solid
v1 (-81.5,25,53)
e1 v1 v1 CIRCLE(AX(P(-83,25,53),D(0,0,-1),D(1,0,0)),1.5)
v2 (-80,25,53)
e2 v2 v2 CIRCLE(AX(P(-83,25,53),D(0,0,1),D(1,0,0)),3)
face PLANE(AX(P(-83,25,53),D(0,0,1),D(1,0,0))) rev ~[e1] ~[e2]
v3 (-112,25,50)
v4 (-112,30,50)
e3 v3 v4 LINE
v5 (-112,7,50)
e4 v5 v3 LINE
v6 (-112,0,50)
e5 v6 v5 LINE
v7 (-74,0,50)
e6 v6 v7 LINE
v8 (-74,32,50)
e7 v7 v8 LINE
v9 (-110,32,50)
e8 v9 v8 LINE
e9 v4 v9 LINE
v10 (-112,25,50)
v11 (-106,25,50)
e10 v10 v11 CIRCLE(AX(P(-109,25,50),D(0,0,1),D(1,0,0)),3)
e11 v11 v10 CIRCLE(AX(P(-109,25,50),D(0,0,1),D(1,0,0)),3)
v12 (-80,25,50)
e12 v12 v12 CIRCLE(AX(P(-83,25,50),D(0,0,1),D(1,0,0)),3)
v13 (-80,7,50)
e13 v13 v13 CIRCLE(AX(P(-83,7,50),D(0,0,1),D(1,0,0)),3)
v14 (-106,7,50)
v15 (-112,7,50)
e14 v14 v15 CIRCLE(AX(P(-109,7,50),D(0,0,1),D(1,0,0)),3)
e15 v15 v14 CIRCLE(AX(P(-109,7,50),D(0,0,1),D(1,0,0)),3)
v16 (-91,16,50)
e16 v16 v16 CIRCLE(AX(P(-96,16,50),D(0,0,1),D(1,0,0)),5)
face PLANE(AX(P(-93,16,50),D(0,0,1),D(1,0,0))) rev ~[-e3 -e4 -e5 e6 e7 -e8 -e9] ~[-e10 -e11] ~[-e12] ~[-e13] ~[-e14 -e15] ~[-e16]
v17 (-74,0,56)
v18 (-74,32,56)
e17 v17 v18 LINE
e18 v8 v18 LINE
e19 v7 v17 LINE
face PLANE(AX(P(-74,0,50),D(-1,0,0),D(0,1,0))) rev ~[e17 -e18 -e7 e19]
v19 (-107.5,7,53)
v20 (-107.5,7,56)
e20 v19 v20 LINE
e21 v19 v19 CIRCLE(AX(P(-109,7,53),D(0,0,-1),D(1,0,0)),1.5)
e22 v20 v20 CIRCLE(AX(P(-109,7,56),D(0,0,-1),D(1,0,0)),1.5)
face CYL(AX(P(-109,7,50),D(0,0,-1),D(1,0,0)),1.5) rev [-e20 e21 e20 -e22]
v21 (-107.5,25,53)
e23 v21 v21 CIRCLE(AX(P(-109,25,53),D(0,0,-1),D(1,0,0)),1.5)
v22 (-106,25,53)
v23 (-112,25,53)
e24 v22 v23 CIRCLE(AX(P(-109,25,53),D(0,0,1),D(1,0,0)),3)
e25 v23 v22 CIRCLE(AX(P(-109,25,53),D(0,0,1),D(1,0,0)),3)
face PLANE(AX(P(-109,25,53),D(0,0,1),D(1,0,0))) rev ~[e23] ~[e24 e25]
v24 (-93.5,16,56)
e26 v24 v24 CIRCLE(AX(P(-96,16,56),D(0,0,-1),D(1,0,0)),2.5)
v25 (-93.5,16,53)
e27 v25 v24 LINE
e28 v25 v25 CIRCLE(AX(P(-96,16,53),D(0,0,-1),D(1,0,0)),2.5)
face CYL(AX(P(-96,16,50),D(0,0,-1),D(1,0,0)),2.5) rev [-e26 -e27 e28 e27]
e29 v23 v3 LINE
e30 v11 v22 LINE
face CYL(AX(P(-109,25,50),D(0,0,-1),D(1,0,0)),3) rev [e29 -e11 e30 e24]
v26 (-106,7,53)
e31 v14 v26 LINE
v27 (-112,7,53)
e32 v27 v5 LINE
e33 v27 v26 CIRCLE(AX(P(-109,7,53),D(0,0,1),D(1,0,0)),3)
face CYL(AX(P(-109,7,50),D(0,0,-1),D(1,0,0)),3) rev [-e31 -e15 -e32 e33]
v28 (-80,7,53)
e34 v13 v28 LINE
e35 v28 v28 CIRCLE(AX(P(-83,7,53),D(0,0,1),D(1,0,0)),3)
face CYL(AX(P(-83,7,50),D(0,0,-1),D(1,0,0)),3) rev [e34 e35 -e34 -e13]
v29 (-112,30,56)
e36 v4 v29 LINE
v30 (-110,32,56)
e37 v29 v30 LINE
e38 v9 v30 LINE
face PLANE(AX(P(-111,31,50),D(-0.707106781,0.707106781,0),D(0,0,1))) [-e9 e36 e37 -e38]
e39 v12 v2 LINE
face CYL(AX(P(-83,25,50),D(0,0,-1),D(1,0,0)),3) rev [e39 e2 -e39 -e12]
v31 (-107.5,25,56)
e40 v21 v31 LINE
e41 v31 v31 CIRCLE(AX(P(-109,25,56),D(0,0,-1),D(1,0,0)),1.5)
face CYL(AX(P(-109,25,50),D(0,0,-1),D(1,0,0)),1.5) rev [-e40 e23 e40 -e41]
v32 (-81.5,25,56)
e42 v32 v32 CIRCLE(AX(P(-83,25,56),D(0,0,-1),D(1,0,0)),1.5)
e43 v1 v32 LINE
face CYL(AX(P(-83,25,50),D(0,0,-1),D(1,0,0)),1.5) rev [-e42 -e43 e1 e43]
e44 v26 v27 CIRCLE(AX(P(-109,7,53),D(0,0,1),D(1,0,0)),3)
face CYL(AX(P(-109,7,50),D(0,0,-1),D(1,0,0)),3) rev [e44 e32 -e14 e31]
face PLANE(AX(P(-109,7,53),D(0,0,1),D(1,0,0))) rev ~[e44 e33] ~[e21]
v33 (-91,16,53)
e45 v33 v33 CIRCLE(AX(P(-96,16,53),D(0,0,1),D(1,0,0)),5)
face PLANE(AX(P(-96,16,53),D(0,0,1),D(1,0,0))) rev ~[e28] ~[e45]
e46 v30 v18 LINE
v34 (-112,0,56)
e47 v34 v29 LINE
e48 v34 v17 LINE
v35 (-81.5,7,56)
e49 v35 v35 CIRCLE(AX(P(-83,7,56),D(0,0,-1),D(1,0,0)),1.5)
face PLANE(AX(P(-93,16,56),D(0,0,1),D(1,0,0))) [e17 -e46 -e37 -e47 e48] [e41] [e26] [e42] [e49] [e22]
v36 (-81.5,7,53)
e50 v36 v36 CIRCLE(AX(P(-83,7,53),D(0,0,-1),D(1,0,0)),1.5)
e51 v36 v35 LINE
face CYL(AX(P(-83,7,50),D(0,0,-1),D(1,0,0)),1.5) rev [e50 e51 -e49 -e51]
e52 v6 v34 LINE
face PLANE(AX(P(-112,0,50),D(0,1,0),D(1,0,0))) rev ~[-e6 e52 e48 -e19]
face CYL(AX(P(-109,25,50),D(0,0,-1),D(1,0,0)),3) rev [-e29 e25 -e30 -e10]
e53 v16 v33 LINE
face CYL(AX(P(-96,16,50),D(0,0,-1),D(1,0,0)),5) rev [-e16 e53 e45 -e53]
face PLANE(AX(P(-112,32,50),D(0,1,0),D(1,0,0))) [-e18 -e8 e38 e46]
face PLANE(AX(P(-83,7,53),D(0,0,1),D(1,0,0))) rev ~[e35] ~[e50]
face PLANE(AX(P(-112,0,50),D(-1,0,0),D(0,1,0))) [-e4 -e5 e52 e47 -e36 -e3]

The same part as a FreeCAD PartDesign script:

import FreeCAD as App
import Part
import Sketcher

V = App.Vector
Q = App.Units.Quantity


def edges_at(feature, points):
    """Names of the edges that pass closest to the given points."""
    edges = feature.Shape.Edges
    near = lambda p: min(range(len(edges)), key=lambda i: edges[i].distToShape(Part.Vertex(*p))[0])
    return sorted({f"Edge{near(p) + 1}" for p in points})


def add_polygon(sketch, points):
    """Adds a closed chain of lines whose ends are joined by coincident constraints."""
    first, n = sketch.GeometryCount, len(points)
    for a, b in zip(points, points[1:] + points[:1]):
        sketch.addGeometry(Part.LineSegment(App.Vector(*a, 0), App.Vector(*b, 0)), False)
    for i in range(n):
        sketch.addConstraint(Sketcher.Constraint("Coincident", first + i, 2, first + (i + 1) % n, 1))

doc = App.newDocument("Part")
params = doc.addObject("Spreadsheet::Sheet", "Params")
for row, (alias, value) in enumerate([
    ("sketch1_diameter", "10 mm"),
    ("pad1_length", "3 mm"),
    ("sketch2_diameter", "5 mm"),
    ("pad2_length", "20 mm"),
    ("sketch3_diameter", "3 mm"),
    ("pad3_length", "20 mm"),
    ("sketch4_diameter", "3 mm"),
    ("pad4_length", "20 mm"),
    ("sketch5_diameter", "3 mm"),
    ("pad5_length", "20 mm"),
    ("sketch6_diameter", "3 mm"),
    ("pad6_length", "20 mm"),
    ("sketch7_diameter", "6 mm"),
    ("pad7_length", "3 mm"),
    ("sketch8_diameter", "6 mm"),
    ("pad8_length", "3 mm"),
    ("sketch9_diameter", "6 mm"),
    ("pad9_length", "3 mm"),
    ("sketch10_diameter", "6 mm"),
    ("pad10_length", "3 mm"),
    ("sketch11_width", "38 mm"),
    ("sketch11_height", "32 mm"),
    ("pad11_length", "6 mm"),
    ("chamfer_size", "2 mm"),
], start=1):
    params.set(f"A{row}", alias)
    params.set(f"B{row}", "=" + value)
    params.setAlias(f"B{row}", alias)

body = doc.addObject("PartDesign::Body", "Body")

# Sketch on XY plane
sketch1 = doc.addObject("Sketcher::SketchObject", "Sketch")
body.addObject(sketch1)
sketch1.AttachmentSupport = (doc.XY_Plane, [""])
sketch1.MapMode = "FlatFace"
sketch1.AttachmentOffset = App.Placement(V(0, 0, 50), App.Rotation())
sketch1.addGeometry(Part.Circle(V(-96, 16, 0), V(0, 0, 1), 5), False)
sketch1.addConstraint([
    Sketcher.Constraint("Diameter", 0, Q("10 mm")),
    Sketcher.Constraint("DistanceX", 0, 3, -1, 1, Q("96 mm")),
    Sketcher.Constraint("DistanceY", -1, 1, 0, 3, Q("16 mm")),
])
sketch1.setExpression("Constraints[0]", "Params.sketch1_diameter")
pad1 = doc.addObject("PartDesign::Pad", "Pad")
body.addObject(pad1)
pad1.Profile = sketch1
pad1.setExpression("Length", "Params.pad1_length")
body2 = doc.addObject("PartDesign::Body", "Body001")

# Sketch on XY plane
sketch2 = doc.addObject("Sketcher::SketchObject", "Sketch001")
body2.addObject(sketch2)
sketch2.AttachmentSupport = (doc.getObject("XY_Plane001"), [""])
sketch2.MapMode = "FlatFace"
sketch2.AttachmentOffset = App.Placement(V(0, 0, 50), App.Rotation())
sketch2.addGeometry(Part.Circle(V(-96, 16, 0), V(0, 0, 1), 2.5), False)
sketch2.addConstraint([
    Sketcher.Constraint("Diameter", 0, Q("5 mm")),
    Sketcher.Constraint("DistanceX", 0, 3, -1, 1, Q("96 mm")),
    Sketcher.Constraint("DistanceY", -1, 1, 0, 3, Q("16 mm")),
])
sketch2.setExpression("Constraints[0]", "Params.sketch2_diameter")
pad2 = doc.addObject("PartDesign::Pad", "Pad001")
body2.addObject(pad2)
pad2.Profile = sketch2
pad2.setExpression("Length", "Params.pad2_length")
body3 = doc.addObject("PartDesign::Body", "Body002")

# Sketch on XY plane
sketch3 = doc.addObject("Sketcher::SketchObject", "Sketch002")
body3.addObject(sketch3)
sketch3.AttachmentSupport = (doc.getObject("XY_Plane002"), [""])
sketch3.MapMode = "FlatFace"
sketch3.AttachmentOffset = App.Placement(V(0, 0, 54), App.Rotation())
sketch3.addGeometry(Part.Circle(V(-83, 25, 0), V(0, 0, 1), 1.5), False)
sketch3.addConstraint([
    Sketcher.Constraint("Diameter", 0, Q("3 mm")),
    Sketcher.Constraint("DistanceX", 0, 3, -1, 1, Q("83 mm")),
    Sketcher.Constraint("DistanceY", -1, 1, 0, 3, Q("25 mm")),
])
sketch3.setExpression("Constraints[0]", "Params.sketch3_diameter")
pad3 = doc.addObject("PartDesign::Pad", "Pad002")
body3.addObject(pad3)
pad3.Profile = sketch3
pad3.setExpression("Length", "Params.pad3_length")
body4 = doc.addObject("PartDesign::Body", "Body003")

# Sketch on XY plane
sketch4 = doc.addObject("Sketcher::SketchObject", "Sketch003")
body4.addObject(sketch4)
sketch4.AttachmentSupport = (doc.getObject("XY_Plane003"), [""])
sketch4.MapMode = "FlatFace"
sketch4.AttachmentOffset = App.Placement(V(0, 0, 54), App.Rotation())
sketch4.addGeometry(Part.Circle(V(-109, 7, 0), V(0, 0, 1), 1.5), False)
sketch4.addConstraint([
    Sketcher.Constraint("Diameter", 0, Q("3 mm")),
    Sketcher.Constraint("DistanceX", 0, 3, -1, 1, Q("109 mm")),
    Sketcher.Constraint("DistanceY", -1, 1, 0, 3, Q("7 mm")),
])
sketch4.setExpression("Constraints[0]", "Params.sketch4_diameter")
pad4 = doc.addObject("PartDesign::Pad", "Pad003")
body4.addObject(pad4)
pad4.Profile = sketch4
pad4.setExpression("Length", "Params.pad4_length")
body5 = doc.addObject("PartDesign::Body", "Body004")

# Sketch on XY plane
sketch5 = doc.addObject("Sketcher::SketchObject", "Sketch004")
body5.addObject(sketch5)
sketch5.AttachmentSupport = (doc.getObject("XY_Plane004"), [""])
sketch5.MapMode = "FlatFace"
sketch5.AttachmentOffset = App.Placement(V(0, 0, 54), App.Rotation())
sketch5.addGeometry(Part.Circle(V(-109, 25, 0), V(0, 0, 1), 1.5), False)
sketch5.addConstraint([
    Sketcher.Constraint("Diameter", 0, Q("3 mm")),
    Sketcher.Constraint("DistanceX", 0, 3, -1, 1, Q("109 mm")),
    Sketcher.Constraint("DistanceY", -1, 1, 0, 3, Q("25 mm")),
])
sketch5.setExpression("Constraints[0]", "Params.sketch5_diameter")
pad5 = doc.addObject("PartDesign::Pad", "Pad004")
body5.addObject(pad5)
pad5.Profile = sketch5
pad5.setExpression("Length", "Params.pad5_length")
body6 = doc.addObject("PartDesign::Body", "Body005")
body6.AllowCompound = True

# Sketch on XY plane
sketch6 = doc.addObject("Sketcher::SketchObject", "Sketch005")
body6.addObject(sketch6)
sketch6.AttachmentSupport = (doc.getObject("XY_Plane005"), [""])
sketch6.MapMode = "FlatFace"
sketch6.AttachmentOffset = App.Placement(V(0, 0, 54), App.Rotation())
sketch6.addGeometry(Part.Circle(V(-83, 7, 0), V(0, 0, 1), 1.5), False)
sketch6.addConstraint([
    Sketcher.Constraint("Diameter", 0, Q("3 mm")),
    Sketcher.Constraint("DistanceX", 0, 3, -1, 1, Q("83 mm")),
    Sketcher.Constraint("DistanceY", -1, 1, 0, 3, Q("7 mm")),
])
sketch6.setExpression("Constraints[0]", "Params.sketch6_diameter")
pad6 = doc.addObject("PartDesign::Pad", "Pad005")
body6.addObject(pad6)
pad6.Profile = sketch6
pad6.setExpression("Length", "Params.pad6_length")
doc.recompute()

boolean = doc.addObject("PartDesign::Boolean", "Boolean")
body6.addObject(boolean)
boolean.Type = "Fuse"
boolean.addObjects([body3])
doc.recompute()

boolean2 = doc.addObject("PartDesign::Boolean", "Boolean001")
body6.addObject(boolean2)
boolean2.Type = "Fuse"
boolean2.addObjects([body4])
doc.recompute()

boolean3 = doc.addObject("PartDesign::Boolean", "Boolean002")
body6.addObject(boolean3)
boolean3.Type = "Fuse"
boolean3.addObjects([body5])
body7 = doc.addObject("PartDesign::Body", "Body006")
body7.AllowCompound = True
doc.recompute()

body6.Placement = App.Placement(V(0, 0, -4), App.Rotation(V(0, 0, 1), 0))
boolean4 = doc.addObject("PartDesign::Boolean", "Boolean003")
body7.addObject(boolean4)
boolean4.Type = "Fuse"
boolean4.addObjects([body6])
body8 = doc.addObject("PartDesign::Body", "Body007")

# Sketch on XY plane
sketch7 = doc.addObject("Sketcher::SketchObject", "Sketch006")
body8.addObject(sketch7)
sketch7.AttachmentSupport = (doc.getObject("XY_Plane007"), [""])
sketch7.MapMode = "FlatFace"
sketch7.AttachmentOffset = App.Placement(V(0, 0, 54), App.Rotation())
sketch7.addGeometry(Part.Circle(V(-83, 25, 0), V(0, 0, 1), 3), False)
sketch7.addConstraint([
    Sketcher.Constraint("Diameter", 0, Q("6 mm")),
    Sketcher.Constraint("DistanceX", 0, 3, -1, 1, Q("83 mm")),
    Sketcher.Constraint("DistanceY", -1, 1, 0, 3, Q("25 mm")),
])
sketch7.setExpression("Constraints[0]", "Params.sketch7_diameter")
pad7 = doc.addObject("PartDesign::Pad", "Pad006")
body8.addObject(pad7)
pad7.Profile = sketch7
pad7.setExpression("Length", "Params.pad7_length")
body9 = doc.addObject("PartDesign::Body", "Body008")

# Sketch on XY plane
sketch8 = doc.addObject("Sketcher::SketchObject", "Sketch007")
body9.addObject(sketch8)
sketch8.AttachmentSupport = (doc.getObject("XY_Plane008"), [""])
sketch8.MapMode = "FlatFace"
sketch8.AttachmentOffset = App.Placement(V(0, 0, 54), App.Rotation())
sketch8.addGeometry(Part.Circle(V(-109, 7, 0), V(0, 0, 1), 3), False)
sketch8.addConstraint([
    Sketcher.Constraint("Diameter", 0, Q("6 mm")),
    Sketcher.Constraint("DistanceX", 0, 3, -1, 1, Q("109 mm")),
    Sketcher.Constraint("DistanceY", -1, 1, 0, 3, Q("7 mm")),
])
sketch8.setExpression("Constraints[0]", "Params.sketch8_diameter")
pad8 = doc.addObject("PartDesign::Pad", "Pad007")
body9.addObject(pad8)
pad8.Profile = sketch8
pad8.setExpression("Length", "Params.pad8_length")
body10 = doc.addObject("PartDesign::Body", "Body009")

# Sketch on XY plane
sketch9 = doc.addObject("Sketcher::SketchObject", "Sketch008")
body10.addObject(sketch9)
sketch9.AttachmentSupport = (doc.getObject("XY_Plane009"), [""])
sketch9.MapMode = "FlatFace"
sketch9.AttachmentOffset = App.Placement(V(0, 0, 54), App.Rotation())
sketch9.addGeometry(Part.Circle(V(-109, 25, 0), V(0, 0, 1), 3), False)
sketch9.addConstraint([
    Sketcher.Constraint("Diameter", 0, Q("6 mm")),
    Sketcher.Constraint("DistanceX", 0, 3, -1, 1, Q("109 mm")),
    Sketcher.Constraint("DistanceY", -1, 1, 0, 3, Q("25 mm")),
])
sketch9.setExpression("Constraints[0]", "Params.sketch9_diameter")
pad9 = doc.addObject("PartDesign::Pad", "Pad008")
body10.addObject(pad9)
pad9.Profile = sketch9
pad9.setExpression("Length", "Params.pad9_length")
body11 = doc.addObject("PartDesign::Body", "Body010")
body11.AllowCompound = True

# Sketch on XY plane
sketch10 = doc.addObject("Sketcher::SketchObject", "Sketch009")
body11.addObject(sketch10)
sketch10.AttachmentSupport = (doc.getObject("XY_Plane010"), [""])
sketch10.MapMode = "FlatFace"
sketch10.AttachmentOffset = App.Placement(V(0, 0, 54), App.Rotation())
sketch10.addGeometry(Part.Circle(V(-83, 7, 0), V(0, 0, 1), 3), False)
sketch10.addConstraint([
    Sketcher.Constraint("Diameter", 0, Q("6 mm")),
    Sketcher.Constraint("DistanceX", 0, 3, -1, 1, Q("83 mm")),
    Sketcher.Constraint("DistanceY", -1, 1, 0, 3, Q("7 mm")),
])
sketch10.setExpression("Constraints[0]", "Params.sketch10_diameter")
pad10 = doc.addObject("PartDesign::Pad", "Pad009")
body11.addObject(pad10)
pad10.Profile = sketch10
pad10.setExpression("Length", "Params.pad10_length")
doc.recompute()

boolean5 = doc.addObject("PartDesign::Boolean", "Boolean004")
body11.addObject(boolean5)
boolean5.Type = "Fuse"
boolean5.addObjects([body8])
doc.recompute()

boolean6 = doc.addObject("PartDesign::Boolean", "Boolean005")
body11.addObject(boolean6)
boolean6.Type = "Fuse"
boolean6.addObjects([body9])
doc.recompute()

boolean7 = doc.addObject("PartDesign::Boolean", "Boolean006")
body11.addObject(boolean7)
boolean7.Type = "Fuse"
boolean7.addObjects([body10])
body12 = doc.addObject("PartDesign::Body", "Body011")
body12.AllowCompound = True
doc.recompute()

body11.Placement = App.Placement(V(0, 0, -4), App.Rotation(V(0, 0, 1), 0))
boolean8 = doc.addObject("PartDesign::Boolean", "Boolean007")
body12.addObject(boolean8)
boolean8.Type = "Fuse"
boolean8.addObjects([body11])
body13 = doc.addObject("PartDesign::Body", "Body012")

# Sketch on XY plane
sketch11 = doc.addObject("Sketcher::SketchObject", "Sketch010")
body13.addObject(sketch11)
sketch11.AttachmentSupport = (doc.getObject("XY_Plane012"), [""])
sketch11.MapMode = "FlatFace"
sketch11.AttachmentOffset = App.Placement(V(0, 0, 50), App.Rotation())
add_polygon(sketch11, [(-112, 32), (-112, 0), (-74, 0), (-74, 32)])  # lines 0-3
sketch11.addConstraint([
    Sketcher.Constraint("Vertical", 0),
    Sketcher.Constraint("Horizontal", 1),
    Sketcher.Constraint("Vertical", 2),
    Sketcher.Constraint("Horizontal", 3),
    Sketcher.Constraint("PointOnObject", 0, 2, -1),
    Sketcher.Constraint("DistanceX", 1, 1, 1, 2, Q("38 mm")),
    Sketcher.Constraint("DistanceY", 0, 2, 0, 1, Q("32 mm")),
    Sketcher.Constraint("DistanceX", 0, 2, -1, 1, Q("112 mm")),
])
sketch11.setExpression("Constraints[9]", "Params.sketch11_width")
sketch11.setExpression("Constraints[10]", "Params.sketch11_height")
pad11 = doc.addObject("PartDesign::Pad", "Pad010")
body13.addObject(pad11)
pad11.Profile = sketch11
pad11.setExpression("Length", "Params.pad11_length")
doc.recompute()

boolean9 = doc.addObject("PartDesign::Boolean", "Boolean008")
body13.addObject(boolean9)
boolean9.Type = "Cut"
boolean9.addObjects([body12])
doc.recompute()

boolean10 = doc.addObject("PartDesign::Boolean", "Boolean009")
body13.addObject(boolean10)
boolean10.Type = "Cut"
boolean10.addObjects([body7])
doc.recompute()

boolean11 = doc.addObject("PartDesign::Boolean", "Boolean010")
body13.addObject(boolean11)
boolean11.Type = "Cut"
boolean11.addObjects([body2])
doc.recompute()

boolean12 = doc.addObject("PartDesign::Boolean", "Boolean011")
body13.addObject(boolean12)
boolean12.Type = "Cut"
boolean12.addObjects([body])
doc.recompute()

chamfer = doc.addObject("PartDesign::Chamfer", "Chamfer")
body13.addObject(chamfer)
chamfer.Base = (boolean12, edges_at(boolean12, [(-112, 32, 53)]))
chamfer.setExpression("Size", "Params.chamfer_size")

doc.recompute()
